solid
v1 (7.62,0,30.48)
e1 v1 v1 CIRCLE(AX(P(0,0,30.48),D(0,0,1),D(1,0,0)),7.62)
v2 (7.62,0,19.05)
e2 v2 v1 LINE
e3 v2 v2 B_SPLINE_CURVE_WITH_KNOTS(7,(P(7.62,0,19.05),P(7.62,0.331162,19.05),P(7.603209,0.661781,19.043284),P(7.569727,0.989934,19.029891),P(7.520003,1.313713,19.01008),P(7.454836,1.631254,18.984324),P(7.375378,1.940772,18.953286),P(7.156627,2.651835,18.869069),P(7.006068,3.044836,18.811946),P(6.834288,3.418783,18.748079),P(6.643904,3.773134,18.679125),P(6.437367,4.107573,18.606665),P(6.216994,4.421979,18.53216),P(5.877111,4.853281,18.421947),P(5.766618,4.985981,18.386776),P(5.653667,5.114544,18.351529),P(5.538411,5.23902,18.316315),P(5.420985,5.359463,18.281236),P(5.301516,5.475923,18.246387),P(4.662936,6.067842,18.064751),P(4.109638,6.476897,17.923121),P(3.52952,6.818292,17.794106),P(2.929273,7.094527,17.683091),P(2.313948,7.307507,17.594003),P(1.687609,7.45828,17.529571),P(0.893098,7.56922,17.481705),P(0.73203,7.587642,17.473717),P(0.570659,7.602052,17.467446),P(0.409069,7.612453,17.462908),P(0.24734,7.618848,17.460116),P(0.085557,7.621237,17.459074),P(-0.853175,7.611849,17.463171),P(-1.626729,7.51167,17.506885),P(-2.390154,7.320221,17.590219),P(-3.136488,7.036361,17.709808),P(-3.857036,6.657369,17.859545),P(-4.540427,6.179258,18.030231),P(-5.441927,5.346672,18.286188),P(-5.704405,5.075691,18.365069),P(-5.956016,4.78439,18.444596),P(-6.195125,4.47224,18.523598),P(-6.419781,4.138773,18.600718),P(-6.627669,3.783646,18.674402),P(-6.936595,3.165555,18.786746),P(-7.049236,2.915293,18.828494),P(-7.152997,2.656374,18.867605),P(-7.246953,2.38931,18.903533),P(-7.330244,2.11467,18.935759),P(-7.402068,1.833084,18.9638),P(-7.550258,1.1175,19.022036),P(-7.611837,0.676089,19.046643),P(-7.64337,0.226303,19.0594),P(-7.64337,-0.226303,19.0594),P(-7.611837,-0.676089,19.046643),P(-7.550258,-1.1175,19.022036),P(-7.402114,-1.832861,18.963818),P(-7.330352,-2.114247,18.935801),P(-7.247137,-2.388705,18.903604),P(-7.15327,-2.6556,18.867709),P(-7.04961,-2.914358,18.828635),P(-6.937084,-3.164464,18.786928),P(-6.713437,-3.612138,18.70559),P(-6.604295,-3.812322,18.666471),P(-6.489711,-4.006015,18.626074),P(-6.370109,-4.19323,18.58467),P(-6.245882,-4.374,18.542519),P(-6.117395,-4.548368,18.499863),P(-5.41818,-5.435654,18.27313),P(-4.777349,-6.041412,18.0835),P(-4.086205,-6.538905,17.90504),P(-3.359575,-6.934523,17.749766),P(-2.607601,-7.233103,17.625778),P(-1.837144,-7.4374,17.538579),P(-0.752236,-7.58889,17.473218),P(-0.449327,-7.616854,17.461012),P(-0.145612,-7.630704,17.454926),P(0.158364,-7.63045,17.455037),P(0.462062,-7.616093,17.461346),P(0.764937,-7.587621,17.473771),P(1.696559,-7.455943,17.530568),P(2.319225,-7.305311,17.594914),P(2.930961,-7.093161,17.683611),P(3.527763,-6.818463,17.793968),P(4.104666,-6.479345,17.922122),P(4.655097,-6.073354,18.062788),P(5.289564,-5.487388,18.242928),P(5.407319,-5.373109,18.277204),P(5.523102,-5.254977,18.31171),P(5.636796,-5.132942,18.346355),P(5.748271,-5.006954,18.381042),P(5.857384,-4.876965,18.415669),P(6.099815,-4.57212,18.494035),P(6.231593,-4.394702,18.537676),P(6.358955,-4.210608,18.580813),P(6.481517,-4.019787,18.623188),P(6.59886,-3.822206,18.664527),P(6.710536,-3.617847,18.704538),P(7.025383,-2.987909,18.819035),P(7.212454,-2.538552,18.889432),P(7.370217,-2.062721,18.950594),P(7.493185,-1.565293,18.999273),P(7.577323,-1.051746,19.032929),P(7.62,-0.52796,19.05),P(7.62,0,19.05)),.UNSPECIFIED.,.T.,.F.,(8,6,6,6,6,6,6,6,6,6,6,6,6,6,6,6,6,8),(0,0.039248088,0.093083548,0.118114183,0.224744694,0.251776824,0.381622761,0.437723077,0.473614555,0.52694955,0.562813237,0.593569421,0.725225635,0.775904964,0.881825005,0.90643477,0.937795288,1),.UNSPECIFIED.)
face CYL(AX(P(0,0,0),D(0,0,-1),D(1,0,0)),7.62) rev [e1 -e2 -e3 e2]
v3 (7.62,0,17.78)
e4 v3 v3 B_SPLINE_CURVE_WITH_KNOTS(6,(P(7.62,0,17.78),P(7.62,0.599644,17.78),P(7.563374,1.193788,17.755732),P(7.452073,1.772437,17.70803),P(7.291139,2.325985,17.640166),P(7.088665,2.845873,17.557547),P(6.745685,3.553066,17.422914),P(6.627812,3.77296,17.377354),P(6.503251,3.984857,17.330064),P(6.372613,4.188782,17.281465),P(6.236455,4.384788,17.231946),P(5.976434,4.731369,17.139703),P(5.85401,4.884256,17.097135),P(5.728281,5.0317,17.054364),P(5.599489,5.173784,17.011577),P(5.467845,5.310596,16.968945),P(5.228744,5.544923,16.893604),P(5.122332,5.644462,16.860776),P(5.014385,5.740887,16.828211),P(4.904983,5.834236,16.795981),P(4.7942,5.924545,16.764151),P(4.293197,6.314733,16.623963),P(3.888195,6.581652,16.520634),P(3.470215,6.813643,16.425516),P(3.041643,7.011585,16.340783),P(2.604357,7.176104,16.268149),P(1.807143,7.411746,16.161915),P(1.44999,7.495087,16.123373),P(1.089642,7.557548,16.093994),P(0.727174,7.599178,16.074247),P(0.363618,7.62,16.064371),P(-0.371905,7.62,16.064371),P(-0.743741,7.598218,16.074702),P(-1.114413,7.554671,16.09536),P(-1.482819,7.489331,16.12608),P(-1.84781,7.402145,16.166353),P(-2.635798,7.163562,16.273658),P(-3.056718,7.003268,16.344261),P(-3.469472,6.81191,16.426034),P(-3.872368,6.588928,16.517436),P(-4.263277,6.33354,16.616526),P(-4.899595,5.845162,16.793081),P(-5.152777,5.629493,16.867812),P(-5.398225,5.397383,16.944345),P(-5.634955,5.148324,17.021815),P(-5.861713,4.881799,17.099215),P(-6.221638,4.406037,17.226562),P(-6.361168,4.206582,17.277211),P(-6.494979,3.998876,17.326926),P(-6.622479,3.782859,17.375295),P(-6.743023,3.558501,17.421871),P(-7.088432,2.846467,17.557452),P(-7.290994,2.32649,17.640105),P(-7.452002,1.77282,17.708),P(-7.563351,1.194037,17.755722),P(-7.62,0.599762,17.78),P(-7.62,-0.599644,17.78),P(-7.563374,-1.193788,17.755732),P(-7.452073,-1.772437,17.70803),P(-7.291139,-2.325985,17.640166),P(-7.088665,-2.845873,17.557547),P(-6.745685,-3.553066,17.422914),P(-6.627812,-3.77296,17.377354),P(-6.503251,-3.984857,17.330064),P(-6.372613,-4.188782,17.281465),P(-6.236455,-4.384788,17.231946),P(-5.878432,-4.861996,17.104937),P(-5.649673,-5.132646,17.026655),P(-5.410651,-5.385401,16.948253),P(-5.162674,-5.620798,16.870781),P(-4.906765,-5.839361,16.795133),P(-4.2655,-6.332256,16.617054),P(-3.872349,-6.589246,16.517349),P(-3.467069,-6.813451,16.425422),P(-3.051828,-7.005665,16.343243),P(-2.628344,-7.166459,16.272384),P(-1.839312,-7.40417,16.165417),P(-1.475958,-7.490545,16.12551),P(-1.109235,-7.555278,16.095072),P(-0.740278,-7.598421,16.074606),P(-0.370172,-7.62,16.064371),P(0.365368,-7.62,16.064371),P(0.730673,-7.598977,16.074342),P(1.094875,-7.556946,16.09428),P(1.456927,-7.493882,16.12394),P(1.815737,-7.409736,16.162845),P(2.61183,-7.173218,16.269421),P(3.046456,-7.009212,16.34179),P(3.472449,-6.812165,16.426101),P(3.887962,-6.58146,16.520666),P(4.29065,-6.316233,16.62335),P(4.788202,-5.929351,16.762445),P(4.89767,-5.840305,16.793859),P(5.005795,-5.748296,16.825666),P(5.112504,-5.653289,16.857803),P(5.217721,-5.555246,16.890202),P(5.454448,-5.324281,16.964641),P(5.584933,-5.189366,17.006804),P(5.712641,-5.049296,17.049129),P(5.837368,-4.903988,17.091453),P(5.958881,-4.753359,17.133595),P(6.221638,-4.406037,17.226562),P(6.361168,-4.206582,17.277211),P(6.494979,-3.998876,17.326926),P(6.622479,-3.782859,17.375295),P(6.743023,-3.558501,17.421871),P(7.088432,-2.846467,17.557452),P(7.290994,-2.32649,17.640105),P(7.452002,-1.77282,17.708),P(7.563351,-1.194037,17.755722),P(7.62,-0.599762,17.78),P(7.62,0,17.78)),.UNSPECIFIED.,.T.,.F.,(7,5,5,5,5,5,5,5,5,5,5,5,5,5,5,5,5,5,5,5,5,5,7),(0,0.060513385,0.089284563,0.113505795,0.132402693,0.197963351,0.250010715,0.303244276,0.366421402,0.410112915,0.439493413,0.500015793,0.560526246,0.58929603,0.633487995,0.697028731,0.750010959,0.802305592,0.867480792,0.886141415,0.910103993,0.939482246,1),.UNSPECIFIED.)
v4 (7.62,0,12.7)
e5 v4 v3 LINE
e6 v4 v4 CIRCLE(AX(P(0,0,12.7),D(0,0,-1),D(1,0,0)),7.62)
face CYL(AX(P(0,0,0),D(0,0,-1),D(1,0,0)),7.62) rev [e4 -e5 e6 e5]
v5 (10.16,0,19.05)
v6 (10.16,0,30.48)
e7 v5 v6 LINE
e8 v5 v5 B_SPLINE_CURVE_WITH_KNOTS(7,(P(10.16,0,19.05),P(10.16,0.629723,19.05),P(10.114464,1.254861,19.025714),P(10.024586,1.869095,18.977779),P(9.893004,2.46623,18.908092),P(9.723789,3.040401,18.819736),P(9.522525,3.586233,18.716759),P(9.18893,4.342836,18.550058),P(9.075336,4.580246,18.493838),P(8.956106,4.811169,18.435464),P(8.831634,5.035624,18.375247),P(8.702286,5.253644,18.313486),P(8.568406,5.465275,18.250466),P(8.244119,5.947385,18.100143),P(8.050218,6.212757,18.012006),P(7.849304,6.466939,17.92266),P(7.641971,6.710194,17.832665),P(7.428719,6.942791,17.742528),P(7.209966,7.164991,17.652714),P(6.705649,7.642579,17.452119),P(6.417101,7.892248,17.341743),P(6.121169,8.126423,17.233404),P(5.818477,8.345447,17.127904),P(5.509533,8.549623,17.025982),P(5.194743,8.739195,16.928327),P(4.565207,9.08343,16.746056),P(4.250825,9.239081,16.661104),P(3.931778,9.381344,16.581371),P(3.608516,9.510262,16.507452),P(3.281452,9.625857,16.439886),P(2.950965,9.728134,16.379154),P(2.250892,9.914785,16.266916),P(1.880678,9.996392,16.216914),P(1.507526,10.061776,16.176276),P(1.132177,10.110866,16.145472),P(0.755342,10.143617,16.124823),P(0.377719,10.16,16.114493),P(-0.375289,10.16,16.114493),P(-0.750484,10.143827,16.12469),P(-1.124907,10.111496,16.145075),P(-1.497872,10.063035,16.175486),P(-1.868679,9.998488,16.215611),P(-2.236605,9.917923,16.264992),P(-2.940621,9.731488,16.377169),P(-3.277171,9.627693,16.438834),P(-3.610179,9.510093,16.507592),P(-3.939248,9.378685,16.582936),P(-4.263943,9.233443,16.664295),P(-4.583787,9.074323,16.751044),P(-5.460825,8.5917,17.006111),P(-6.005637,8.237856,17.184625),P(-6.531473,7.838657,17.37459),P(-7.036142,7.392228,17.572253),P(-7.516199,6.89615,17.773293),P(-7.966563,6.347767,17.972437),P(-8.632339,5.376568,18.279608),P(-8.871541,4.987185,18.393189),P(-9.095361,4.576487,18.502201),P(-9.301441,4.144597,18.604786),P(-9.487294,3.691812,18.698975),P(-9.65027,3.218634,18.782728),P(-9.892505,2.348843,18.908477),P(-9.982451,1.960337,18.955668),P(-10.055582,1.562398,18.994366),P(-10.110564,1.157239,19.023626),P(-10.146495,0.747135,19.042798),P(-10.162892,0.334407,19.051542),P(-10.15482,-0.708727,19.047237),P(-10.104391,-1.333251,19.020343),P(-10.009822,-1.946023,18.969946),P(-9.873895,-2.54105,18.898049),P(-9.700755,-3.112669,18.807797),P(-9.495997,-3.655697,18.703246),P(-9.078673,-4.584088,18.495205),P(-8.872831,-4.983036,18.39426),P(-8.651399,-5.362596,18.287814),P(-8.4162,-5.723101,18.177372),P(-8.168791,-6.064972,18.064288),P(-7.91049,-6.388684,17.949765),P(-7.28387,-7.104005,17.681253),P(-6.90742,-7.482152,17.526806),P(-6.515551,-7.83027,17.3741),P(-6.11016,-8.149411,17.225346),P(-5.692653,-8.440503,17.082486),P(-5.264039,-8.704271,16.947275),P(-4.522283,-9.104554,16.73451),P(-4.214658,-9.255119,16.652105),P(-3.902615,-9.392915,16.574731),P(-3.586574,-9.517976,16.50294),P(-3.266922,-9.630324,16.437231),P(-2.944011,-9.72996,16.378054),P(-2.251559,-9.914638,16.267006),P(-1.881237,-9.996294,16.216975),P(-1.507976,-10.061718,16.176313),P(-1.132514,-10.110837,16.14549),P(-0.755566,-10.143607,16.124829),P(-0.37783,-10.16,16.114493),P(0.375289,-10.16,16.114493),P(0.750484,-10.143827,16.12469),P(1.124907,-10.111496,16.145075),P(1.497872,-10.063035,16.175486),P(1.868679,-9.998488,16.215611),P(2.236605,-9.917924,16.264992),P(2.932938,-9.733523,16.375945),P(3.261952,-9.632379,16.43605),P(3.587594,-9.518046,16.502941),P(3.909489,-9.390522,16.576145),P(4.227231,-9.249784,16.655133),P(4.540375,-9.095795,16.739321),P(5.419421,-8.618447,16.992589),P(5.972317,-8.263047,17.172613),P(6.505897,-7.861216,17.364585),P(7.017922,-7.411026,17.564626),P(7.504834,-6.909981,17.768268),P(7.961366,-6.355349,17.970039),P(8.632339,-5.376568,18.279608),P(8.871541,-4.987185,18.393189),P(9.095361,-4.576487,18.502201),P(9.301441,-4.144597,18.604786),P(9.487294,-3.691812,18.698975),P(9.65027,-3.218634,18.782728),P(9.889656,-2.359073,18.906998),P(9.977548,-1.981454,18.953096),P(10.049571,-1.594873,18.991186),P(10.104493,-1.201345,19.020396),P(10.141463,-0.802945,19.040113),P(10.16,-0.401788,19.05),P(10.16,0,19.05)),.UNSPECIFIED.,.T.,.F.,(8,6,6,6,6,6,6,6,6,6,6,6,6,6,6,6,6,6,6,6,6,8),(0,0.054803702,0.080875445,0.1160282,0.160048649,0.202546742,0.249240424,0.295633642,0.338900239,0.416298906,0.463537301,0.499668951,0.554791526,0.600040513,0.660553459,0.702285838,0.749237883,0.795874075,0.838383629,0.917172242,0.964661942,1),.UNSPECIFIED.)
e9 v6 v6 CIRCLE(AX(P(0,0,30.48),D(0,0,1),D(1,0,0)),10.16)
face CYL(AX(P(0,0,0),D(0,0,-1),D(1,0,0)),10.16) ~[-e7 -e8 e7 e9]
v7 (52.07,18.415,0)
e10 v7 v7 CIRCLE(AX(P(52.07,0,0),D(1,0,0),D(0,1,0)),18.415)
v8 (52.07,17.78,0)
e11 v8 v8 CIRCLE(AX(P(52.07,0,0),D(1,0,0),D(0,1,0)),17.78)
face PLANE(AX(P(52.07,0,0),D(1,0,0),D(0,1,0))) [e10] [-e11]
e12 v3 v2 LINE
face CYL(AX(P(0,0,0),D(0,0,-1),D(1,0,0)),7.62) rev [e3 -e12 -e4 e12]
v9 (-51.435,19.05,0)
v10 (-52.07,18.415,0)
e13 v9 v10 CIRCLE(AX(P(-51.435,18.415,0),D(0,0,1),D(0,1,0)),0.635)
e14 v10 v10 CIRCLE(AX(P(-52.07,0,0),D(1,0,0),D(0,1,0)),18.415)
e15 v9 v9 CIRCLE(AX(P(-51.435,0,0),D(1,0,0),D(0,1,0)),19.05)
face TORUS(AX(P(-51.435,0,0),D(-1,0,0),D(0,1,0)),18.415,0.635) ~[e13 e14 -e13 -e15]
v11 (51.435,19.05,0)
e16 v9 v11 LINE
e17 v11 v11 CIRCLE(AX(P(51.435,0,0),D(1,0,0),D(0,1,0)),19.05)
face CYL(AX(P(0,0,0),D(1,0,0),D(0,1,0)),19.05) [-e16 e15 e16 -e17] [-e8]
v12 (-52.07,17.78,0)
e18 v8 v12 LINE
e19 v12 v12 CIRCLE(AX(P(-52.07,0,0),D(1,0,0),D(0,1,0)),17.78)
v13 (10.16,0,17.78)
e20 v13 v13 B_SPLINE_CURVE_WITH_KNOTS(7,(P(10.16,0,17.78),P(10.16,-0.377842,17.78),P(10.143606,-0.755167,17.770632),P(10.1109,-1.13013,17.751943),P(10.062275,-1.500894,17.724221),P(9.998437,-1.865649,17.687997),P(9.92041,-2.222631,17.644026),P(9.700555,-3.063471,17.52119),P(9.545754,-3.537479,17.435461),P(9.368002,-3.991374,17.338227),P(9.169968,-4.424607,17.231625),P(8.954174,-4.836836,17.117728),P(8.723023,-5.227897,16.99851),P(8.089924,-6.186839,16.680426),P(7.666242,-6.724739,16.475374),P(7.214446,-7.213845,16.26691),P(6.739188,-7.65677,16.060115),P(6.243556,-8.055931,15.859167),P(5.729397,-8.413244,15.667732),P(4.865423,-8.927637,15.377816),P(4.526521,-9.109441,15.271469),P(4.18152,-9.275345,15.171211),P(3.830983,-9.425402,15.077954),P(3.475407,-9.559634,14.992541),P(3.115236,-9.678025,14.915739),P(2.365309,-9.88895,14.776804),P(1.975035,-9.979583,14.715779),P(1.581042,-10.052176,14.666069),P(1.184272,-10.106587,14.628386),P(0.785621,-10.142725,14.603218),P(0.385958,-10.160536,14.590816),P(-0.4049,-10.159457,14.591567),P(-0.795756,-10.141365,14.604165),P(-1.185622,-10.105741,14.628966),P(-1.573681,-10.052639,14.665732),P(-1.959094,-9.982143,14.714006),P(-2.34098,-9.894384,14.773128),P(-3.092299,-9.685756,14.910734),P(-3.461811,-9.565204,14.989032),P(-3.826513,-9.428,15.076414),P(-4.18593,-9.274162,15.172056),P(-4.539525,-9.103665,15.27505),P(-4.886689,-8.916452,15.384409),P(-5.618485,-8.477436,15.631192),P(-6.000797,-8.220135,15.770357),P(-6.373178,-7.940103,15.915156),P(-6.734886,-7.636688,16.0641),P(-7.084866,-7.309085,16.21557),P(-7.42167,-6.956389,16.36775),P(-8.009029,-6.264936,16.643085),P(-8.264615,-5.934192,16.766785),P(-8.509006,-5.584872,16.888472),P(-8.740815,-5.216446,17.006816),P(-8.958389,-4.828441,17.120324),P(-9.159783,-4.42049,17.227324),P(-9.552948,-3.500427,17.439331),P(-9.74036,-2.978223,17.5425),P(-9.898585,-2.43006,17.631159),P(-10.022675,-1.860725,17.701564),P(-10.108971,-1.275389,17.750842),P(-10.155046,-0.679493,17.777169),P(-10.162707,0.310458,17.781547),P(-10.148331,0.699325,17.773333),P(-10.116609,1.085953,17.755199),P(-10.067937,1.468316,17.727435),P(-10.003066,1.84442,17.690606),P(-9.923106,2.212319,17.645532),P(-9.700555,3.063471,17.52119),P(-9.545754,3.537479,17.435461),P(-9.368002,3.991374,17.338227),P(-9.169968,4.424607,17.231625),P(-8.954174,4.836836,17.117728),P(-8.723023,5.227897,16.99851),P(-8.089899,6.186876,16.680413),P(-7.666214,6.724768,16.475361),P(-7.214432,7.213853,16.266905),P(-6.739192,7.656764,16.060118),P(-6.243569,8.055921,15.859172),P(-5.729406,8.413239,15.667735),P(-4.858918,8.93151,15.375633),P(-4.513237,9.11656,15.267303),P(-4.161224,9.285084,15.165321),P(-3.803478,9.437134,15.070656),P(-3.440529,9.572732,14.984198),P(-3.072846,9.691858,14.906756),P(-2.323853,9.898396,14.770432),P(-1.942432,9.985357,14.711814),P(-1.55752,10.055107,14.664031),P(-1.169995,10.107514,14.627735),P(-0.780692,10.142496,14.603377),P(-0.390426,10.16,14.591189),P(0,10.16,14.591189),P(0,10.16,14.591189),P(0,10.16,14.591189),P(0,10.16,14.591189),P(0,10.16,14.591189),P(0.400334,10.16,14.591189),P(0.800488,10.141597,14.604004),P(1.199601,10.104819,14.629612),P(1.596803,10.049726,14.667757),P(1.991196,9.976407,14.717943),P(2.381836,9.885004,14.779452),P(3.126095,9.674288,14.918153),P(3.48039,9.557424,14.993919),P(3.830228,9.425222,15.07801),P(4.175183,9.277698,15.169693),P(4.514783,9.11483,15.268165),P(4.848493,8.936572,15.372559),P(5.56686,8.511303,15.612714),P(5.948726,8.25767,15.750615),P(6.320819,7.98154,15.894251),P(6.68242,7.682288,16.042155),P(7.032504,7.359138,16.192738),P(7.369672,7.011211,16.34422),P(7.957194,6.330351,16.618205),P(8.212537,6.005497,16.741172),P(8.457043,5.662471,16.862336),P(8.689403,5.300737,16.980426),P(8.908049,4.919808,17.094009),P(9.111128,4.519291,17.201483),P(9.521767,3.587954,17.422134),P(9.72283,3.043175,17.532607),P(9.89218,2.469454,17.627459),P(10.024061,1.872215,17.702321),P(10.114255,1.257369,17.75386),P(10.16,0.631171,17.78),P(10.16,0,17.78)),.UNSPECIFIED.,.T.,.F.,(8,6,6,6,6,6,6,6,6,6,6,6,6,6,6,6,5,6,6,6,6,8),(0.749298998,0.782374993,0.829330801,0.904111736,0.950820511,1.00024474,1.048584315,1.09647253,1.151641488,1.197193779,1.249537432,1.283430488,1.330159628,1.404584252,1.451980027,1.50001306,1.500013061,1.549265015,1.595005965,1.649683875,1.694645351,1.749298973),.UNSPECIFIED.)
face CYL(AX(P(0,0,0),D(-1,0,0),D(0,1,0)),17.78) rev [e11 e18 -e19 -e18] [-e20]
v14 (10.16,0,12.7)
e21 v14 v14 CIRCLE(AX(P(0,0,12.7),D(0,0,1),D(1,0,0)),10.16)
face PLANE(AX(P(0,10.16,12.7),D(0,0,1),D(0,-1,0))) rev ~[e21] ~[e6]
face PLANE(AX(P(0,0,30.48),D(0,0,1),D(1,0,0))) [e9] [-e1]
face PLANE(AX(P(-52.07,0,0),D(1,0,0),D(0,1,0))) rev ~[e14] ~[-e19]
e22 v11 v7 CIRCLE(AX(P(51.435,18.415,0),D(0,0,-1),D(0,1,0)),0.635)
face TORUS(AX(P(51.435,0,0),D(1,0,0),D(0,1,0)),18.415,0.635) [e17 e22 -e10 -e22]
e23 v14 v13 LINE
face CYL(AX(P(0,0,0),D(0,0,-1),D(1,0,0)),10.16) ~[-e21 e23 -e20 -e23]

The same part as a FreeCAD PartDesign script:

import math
import FreeCAD as App
import Part
import Sketcher
Q = App.Units.Quantity


def edges_at(feature, points):
    """Names of the edges that pass closest to the given points."""
    edges = feature.Shape.Edges
    near = lambda p: min(range(len(edges)), key=lambda i: edges[i].distToShape(Part.Vertex(*p))[0])
    return sorted({f"Edge{near(p) + 1}" for p in points})

doc = App.newDocument("Part")
body = doc.addObject("PartDesign::Body", "Body")

# Sketch on YZ plane
sketch1 = doc.addObject("Sketcher::SketchObject", "Sketch")
body.addObject(sketch1)
sketch1.AttachmentSupport = (doc.YZ_Plane, [""])
sketch1.MapMode = "FlatFace"
sketch1.addGeometry([
    Part.Circle(App.Vector(0, 0, 0), App.Vector(0, 0, 1), 19),
    Part.Circle(App.Vector(0, 0, 0), App.Vector(0, 0, 1), 18),
], False)
sketch1.addConstraint([
    Sketcher.Constraint("Coincident", 0, 3, -1, 1),
    Sketcher.Constraint("Coincident", 1, 3, -1, 1),
    Sketcher.Constraint("Diameter", 0, Q("1.5 in")),
    Sketcher.Constraint("Diameter", 1, Q("1.4 in")),
])
pad1 = doc.addObject("PartDesign::Pad", "Pad")
body.addObject(pad1)
pad1.Profile = sketch1
pad1.Length = Q("4.1 in")
pad1.Midplane = True
doc.recompute()

fillet = doc.addObject("PartDesign::Fillet", "Fillet")
body.addObject(fillet)
fillet.Base = (pad1, edges_at(pad1, [(52.07, -19.05, 0), (-52.07, -19.05, 0)]))
fillet.Radius = Q("0.025 in")

# Sketch on XY plane
sketch2 = doc.addObject("Sketcher::SketchObject", "Sketch001")
body.addObject(sketch2)
sketch2.AttachmentSupport = (doc.XY_Plane, [""])
sketch2.MapMode = "FlatFace"
sketch2.addGeometry([
    Part.Circle(App.Vector(0, 0, 0), App.Vector(0, 0, 1), 10),
    Part.Circle(App.Vector(0, 0, 0), App.Vector(0, 0, 1), 8),
], False)
sketch2.addConstraint([
    Sketcher.Constraint("Coincident", 0, 3, -1, 1),
    Sketcher.Constraint("Coincident", 1, 3, -1, 1),
    Sketcher.Constraint("Diameter", 0, Q("0.8 in")),
    Sketcher.Constraint("Diameter", 1, Q("0.6 in")),
])
pad2 = doc.addObject("PartDesign::Pad", "Pad001")
body.addObject(pad2)
pad2.Profile = sketch2
pad2.Length = Q("1.2 in")

# Sketch on XY plane
sketch3 = doc.addObject("Sketcher::SketchObject", "Sketch002")
body.addObject(sketch3)
sketch3.AttachmentSupport = (doc.XY_Plane, [""])
sketch3.MapMode = "FlatFace"
sketch3.addGeometry(Part.Circle(App.Vector(0, 0, 0), App.Vector(0, 0, 1), 8), False)
sketch3.addConstraint([
    Sketcher.Constraint("Coincident", 0, 3, -1, 1),
    Sketcher.Constraint("Diameter", 0, Q("0.6 in")),
])
pocket1 = doc.addObject("PartDesign::Pocket", "Pocket")
body.addObject(pocket1)
pocket1.Profile = sketch3
pocket1.Type = "ThroughAll"
pocket1.Reversed = True

# Sketch on YZ plane
sketch4 = doc.addObject("Sketcher::SketchObject", "Sketch003")
body.addObject(sketch4)
sketch4.AttachmentSupport = (doc.YZ_Plane, [""])
sketch4.MapMode = "FlatFace"
sketch4.addGeometry([
    Part.LineSegment(App.Vector(-10.2, 12.7, 0), App.Vector(-10.2, 14.6, 0)),
    Part.ArcOfCircle(Part.Circle(App.Vector(0, 0, 0), App.Vector(0, 0, 1), 17.8), math.radians(125), math.radians(415)),
    Part.LineSegment(App.Vector(10.2, 14.6, 0), App.Vector(10.2, 12.7, 0)),
    Part.LineSegment(App.Vector(10.2, 12.7, 0), App.Vector(-10.2, 12.7, 0)),
], False)
sketch4.addConstraint([
    Sketcher.Constraint("Coincident", 0, 2, 1, 1),
    Sketcher.Constraint("Coincident", 1, 2, 2, 1),
    Sketcher.Constraint("Coincident", 2, 2, 3, 1),
    Sketcher.Constraint("Coincident", 3, 2, 0, 1),
    Sketcher.Constraint("Vertical", 0),
    Sketcher.Constraint("Vertical", 2),
    Sketcher.Constraint("Horizontal", 3),
    Sketcher.Constraint("Coincident", 1, 3, -1, 1),
    Sketcher.Constraint("Horizontal", 0, 2, 1, 2),
    Sketcher.Constraint("Radius", 1, Q("0.7 in")),
    Sketcher.Constraint("DistanceX", 3, 2, 3, 1, Q("0.8 in")),
    Sketcher.Constraint("DistanceY", -1, 1, 2, 2, Q("0.5 in")),
])
pocket2 = doc.addObject("PartDesign::Pocket", "Pocket001")
body.addObject(pocket2)
pocket2.Profile = sketch4
pocket2.Length = Q("2 in")
pocket2.Midplane = True

doc.recompute()
